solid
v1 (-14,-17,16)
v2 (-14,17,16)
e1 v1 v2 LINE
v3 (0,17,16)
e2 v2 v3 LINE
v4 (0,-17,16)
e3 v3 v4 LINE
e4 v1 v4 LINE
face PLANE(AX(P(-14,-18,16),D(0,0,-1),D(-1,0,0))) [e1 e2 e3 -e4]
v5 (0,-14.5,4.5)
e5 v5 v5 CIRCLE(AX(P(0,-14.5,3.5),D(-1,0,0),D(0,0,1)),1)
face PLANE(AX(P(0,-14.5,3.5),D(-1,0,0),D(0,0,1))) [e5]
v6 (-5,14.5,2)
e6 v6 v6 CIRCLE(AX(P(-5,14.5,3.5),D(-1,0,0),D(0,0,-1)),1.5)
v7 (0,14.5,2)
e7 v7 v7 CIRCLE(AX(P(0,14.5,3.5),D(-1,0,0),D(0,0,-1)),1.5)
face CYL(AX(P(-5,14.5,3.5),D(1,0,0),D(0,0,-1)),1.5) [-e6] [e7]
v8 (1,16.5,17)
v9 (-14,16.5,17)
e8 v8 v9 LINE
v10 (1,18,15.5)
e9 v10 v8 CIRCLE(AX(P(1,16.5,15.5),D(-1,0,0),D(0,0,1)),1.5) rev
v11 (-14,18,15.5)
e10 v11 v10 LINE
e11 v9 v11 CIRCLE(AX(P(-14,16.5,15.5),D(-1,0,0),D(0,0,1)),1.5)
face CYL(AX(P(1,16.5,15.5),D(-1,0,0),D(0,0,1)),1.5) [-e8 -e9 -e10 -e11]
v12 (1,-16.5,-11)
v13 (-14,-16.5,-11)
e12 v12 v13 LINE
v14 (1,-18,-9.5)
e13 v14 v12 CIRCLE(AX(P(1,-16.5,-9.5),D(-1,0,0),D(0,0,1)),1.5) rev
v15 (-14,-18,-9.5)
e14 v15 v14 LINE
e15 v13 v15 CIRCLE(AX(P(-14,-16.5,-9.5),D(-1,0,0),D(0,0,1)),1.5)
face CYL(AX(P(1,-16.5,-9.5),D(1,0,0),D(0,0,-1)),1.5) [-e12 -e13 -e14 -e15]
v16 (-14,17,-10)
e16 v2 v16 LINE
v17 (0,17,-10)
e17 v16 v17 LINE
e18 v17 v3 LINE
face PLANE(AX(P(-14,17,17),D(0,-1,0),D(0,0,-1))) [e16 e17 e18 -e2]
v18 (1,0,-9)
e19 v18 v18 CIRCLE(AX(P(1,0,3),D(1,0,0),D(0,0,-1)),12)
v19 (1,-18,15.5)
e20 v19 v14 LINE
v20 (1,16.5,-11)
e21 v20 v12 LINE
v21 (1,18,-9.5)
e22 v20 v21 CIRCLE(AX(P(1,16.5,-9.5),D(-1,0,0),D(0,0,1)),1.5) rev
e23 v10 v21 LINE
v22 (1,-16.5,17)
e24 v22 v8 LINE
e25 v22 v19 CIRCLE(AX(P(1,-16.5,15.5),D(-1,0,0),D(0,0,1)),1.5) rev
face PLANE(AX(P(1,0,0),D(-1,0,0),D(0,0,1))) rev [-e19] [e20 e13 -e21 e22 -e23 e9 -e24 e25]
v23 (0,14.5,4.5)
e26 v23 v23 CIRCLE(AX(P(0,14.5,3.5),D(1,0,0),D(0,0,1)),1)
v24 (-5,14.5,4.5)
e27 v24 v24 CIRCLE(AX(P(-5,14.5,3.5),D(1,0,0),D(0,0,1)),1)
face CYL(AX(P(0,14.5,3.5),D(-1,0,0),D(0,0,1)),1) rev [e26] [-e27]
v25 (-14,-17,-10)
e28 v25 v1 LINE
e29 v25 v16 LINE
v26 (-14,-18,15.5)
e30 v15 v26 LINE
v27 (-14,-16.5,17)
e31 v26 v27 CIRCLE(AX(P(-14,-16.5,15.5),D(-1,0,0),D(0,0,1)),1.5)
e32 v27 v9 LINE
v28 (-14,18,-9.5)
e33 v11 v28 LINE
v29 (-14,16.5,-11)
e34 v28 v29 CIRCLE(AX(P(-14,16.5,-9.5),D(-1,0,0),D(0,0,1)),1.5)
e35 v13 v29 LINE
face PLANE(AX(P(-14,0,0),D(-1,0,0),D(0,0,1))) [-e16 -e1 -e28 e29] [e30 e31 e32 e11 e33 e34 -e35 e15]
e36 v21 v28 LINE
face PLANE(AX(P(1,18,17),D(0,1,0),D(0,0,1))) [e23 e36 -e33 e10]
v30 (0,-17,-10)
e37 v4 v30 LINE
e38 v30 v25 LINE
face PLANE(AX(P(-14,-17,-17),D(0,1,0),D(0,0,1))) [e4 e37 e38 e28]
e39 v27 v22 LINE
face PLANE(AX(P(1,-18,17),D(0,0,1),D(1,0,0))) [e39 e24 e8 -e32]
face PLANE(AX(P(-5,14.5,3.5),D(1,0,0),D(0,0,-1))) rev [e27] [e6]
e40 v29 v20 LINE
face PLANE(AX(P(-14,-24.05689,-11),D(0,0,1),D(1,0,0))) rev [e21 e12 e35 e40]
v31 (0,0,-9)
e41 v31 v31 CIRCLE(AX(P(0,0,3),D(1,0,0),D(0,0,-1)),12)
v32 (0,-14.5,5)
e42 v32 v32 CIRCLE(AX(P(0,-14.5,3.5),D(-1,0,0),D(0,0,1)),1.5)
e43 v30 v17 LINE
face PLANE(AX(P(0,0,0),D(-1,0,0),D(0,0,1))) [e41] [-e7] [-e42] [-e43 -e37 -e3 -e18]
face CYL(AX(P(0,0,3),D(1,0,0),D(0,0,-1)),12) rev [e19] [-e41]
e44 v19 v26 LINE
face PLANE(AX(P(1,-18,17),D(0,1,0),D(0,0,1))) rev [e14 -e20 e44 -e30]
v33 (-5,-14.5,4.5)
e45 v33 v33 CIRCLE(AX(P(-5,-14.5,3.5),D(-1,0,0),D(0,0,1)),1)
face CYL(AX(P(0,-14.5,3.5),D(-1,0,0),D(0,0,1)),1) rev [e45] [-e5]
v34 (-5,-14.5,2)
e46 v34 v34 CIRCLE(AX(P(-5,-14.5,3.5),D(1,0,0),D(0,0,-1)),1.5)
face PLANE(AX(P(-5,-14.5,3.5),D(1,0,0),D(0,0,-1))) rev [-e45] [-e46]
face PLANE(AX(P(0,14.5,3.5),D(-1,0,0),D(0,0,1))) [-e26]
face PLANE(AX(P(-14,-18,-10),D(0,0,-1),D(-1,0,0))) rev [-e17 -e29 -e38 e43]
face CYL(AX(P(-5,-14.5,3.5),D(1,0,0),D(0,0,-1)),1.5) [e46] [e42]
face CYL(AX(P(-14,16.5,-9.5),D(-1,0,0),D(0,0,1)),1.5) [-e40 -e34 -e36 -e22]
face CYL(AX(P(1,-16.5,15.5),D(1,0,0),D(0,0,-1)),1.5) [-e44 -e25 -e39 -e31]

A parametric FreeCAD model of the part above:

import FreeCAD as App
import Part
import Sketcher

V = App.Vector


def edges_at(feature, points):
    """Names of the edges that pass closest to the given points."""
    edges = feature.Shape.Edges
    near = lambda p: min(range(len(edges)), key=lambda i: edges[i].distToShape(Part.Vertex(*p))[0])
    return sorted({f"Edge{near(p) + 1}" for p in points})


def add_polygon(sketch, points):
    """Adds a closed chain of lines whose ends are joined by coincident constraints."""
    first, n = sketch.GeometryCount, len(points)
    for a, b in zip(points, points[1:] + points[:1]):
        sketch.addGeometry(Part.LineSegment(App.Vector(*a, 0), App.Vector(*b, 0)), False)
    for i in range(n):
        sketch.addConstraint(Sketcher.Constraint("Coincident", first + i, 2, first + (i + 1) % n, 1))

doc = App.newDocument("Part")
body = doc.addObject("PartDesign::Body", "Body")

sketch1 = body.newObject("Sketcher::SketchObject", "Sketch")
sketch1.AttachmentSupport = (doc.getObject("YZ_Plane"), [""])
sketch1.MapMode = "FlatFace"
add_polygon(sketch1, [(-18, 17), (-18, -17), (18, -17), (18, 17)])
sketch1.addConstraint([
    Sketcher.Constraint("Vertical", 0),
    Sketcher.Constraint("Horizontal", 1),
    Sketcher.Constraint("Vertical", 2),
    Sketcher.Constraint("Horizontal", 3),
    Sketcher.Constraint("Symmetric", 0, 2, 2, 2, -1, 1),
    Sketcher.Constraint("DistanceX", 1, 1, 1, 2, 36.0),
    Sketcher.Constraint("DistanceY", 0, 2, 0, 1, 34.0),
])
pad1 = body.newObject("PartDesign::Pad", "Pad")
pad1.Profile = sketch1
pad1.Length = 1

sketch2 = body.newObject("Sketcher::SketchObject", "Sketch001")
sketch2.AttachmentSupport = (doc.getObject("YZ_Plane"), [""])
sketch2.MapMode = "FlatFace"
sketch2.AttachmentOffset = App.Placement(V(0, 0, 1), App.Rotation())
sketch2.addGeometry(Part.Circle(V(0, 3, 0), V(0, 0, 1), 12), False)
sketch2.addConstraint([
    Sketcher.Constraint("PointOnObject", 0, 3, -2),
    Sketcher.Constraint("Diameter", 0, 24.0),
    Sketcher.Constraint("DistanceY", -1, 1, 0, 3, 3.0),
])
pocket1 = body.newObject("PartDesign::Pocket", "Pocket")
pocket1.Profile = sketch2
pocket1.Length = 1

sketch3 = body.newObject("Sketcher::SketchObject", "Sketch002")
sketch3.AttachmentSupport = (doc.getObject("YZ_Plane"), [""])
sketch3.MapMode = "FlatFace"
sketch3.AttachmentOffset = App.Placement(V(0, 0, 1), App.Rotation())
add_polygon(sketch3, [(-18, 17), (-18, -17), (-17, -17), (-17, 16), (17, 16), (17, -17), (18, -17), (18, 17)])
sketch3.addConstraint([
    Sketcher.Constraint("Vertical", 0),
    Sketcher.Constraint("Horizontal", 1),
    Sketcher.Constraint("Vertical", 2),
    Sketcher.Constraint("Horizontal", 3),
    Sketcher.Constraint("Vertical", 4),
    Sketcher.Constraint("Horizontal", 5),
    Sketcher.Constraint("Vertical", 6),
    Sketcher.Constraint("Horizontal", 7),
    Sketcher.Constraint("Symmetric", 0, 2, 6, 2, -1, 1),
    Sketcher.Constraint("Symmetric", 1, 2, 4, 2, -2),
    Sketcher.Constraint("Equal", 3, 0),
    Sketcher.Constraint("DistanceX", 1, 1, 1, 2, 1.0),
    Sketcher.Constraint("DistanceX", 3, 1, 3, 2, 34.0),
    Sketcher.Constraint("DistanceY", 2, 1, 2, 2, 33.0),
])
pad2 = body.newObject("PartDesign::Pad", "Pad001")
pad2.Profile = sketch3
pad2.Length = 15
pad2.Reversed = True

sketch4 = body.newObject("Sketcher::SketchObject", "Sketch003")
sketch4.AttachmentSupport = (doc.getObject("YZ_Plane"), [""])
sketch4.MapMode = "FlatFace"
sketch4.AttachmentOffset = App.Placement(V(0, 0, 1), App.Rotation())
add_polygon(sketch4, [(24.005155, -11), (-24.05689, -11), (-24.05689, -17.466906), (24.005155, -17.466906)])
sketch4.addConstraint([
    Sketcher.Constraint("Horizontal", 0),
    Sketcher.Constraint("Vertical", 1),
    Sketcher.Constraint("Horizontal", 2),
    Sketcher.Constraint("Vertical", 3),
    Sketcher.Constraint("DistanceY", 0, 2, -1, 1, 11.0),
    Sketcher.Constraint("DistanceX", 0, 2, 0, 1, 48.062044),
    Sketcher.Constraint("DistanceY", 1, 2, 1, 1, 6.466906),
    Sketcher.Constraint("DistanceX", 0, 2, -1, 1, 24.05689),
])
pocket2 = body.newObject("PartDesign::Pocket", "Pocket001")
pocket2.Profile = sketch4
pocket2.Type = "ThroughAll"

sketch5 = body.newObject("Sketcher::SketchObject", "Sketch004")
sketch5.AttachmentSupport = (doc.getObject("YZ_Plane"), [""])
sketch5.MapMode = "FlatFace"
add_polygon(sketch5, [(-18, -10), (-18, -11), (18, -11), (18, -10)])
sketch5.addConstraint([
    Sketcher.Constraint("Vertical", 0),
    Sketcher.Constraint("Horizontal", 1),
    Sketcher.Constraint("Vertical", 2),
    Sketcher.Constraint("Horizontal", 3),
    Sketcher.Constraint("DistanceX", 1, 1, 1, 2, 36.0),
    Sketcher.Constraint("DistanceY", 0, 2, 0, 1, 1.0),
    Sketcher.Constraint("DistanceX", 0, 2, -1, 1, 18.0),
    Sketcher.Constraint("DistanceY", 0, 2, -1, 1, 11.0),
])
pad3 = body.newObject("PartDesign::Pad", "Pad002")
pad3.Profile = sketch5
pad3.Length = 14
pad3.Reversed = True
doc.recompute()

fillet = body.newObject("PartDesign::Fillet", "Fillet")
fillet.Base = (pad3, edges_at(pad3, [
    (-6.5, 18, -11),
    (-6.5, -18, -11),
    (-6.5, -18, 17),
    (-6.5, 18, 17),
]))
fillet.Radius = 1.5

sketch6 = body.newObject("Sketcher::SketchObject", "Sketch005")
sketch6.AttachmentSupport = (doc.getObject("YZ_Plane"), [""])
sketch6.MapMode = "FlatFace"
sketch6.addGeometry(Part.Circle(V(-14.5, 3.5, 0), V(0, 0, 1), 1.5), False)
sketch6.addConstraint([
    Sketcher.Constraint("Diameter", 0, 3.0),
    Sketcher.Constraint("DistanceX", 0, 3, -1, 1, 14.5),
    Sketcher.Constraint("DistanceY", -1, 1, 0, 3, 3.5),
])
pad4 = body.newObject("PartDesign::Pad", "Pad003")
pad4.Profile = sketch6
pad4.Length = 5
pad4.Reversed = True

sketch7 = body.newObject("Sketcher::SketchObject", "Sketch006")
sketch7.AttachmentSupport = (doc.getObject("YZ_Plane"), [""])
sketch7.MapMode = "FlatFace"
sketch7.AttachmentOffset = App.Placement(V(0, 0, -5), App.Rotation())
sketch7.addGeometry(Part.Circle(V(-14.5, 3.5, 0), V(0, 0, 1), 1), False)
sketch7.addConstraint([
    Sketcher.Constraint("Diameter", 0, 2.0),
    Sketcher.Constraint("DistanceX", 0, 3, -1, 1, 14.5),
    Sketcher.Constraint("DistanceY", -1, 1, 0, 3, 3.5),
])
pocket3 = body.newObject("PartDesign::Pocket", "Pocket002")
pocket3.Profile = sketch7
pocket3.Length = 5
pocket3.Reversed = True
doc.recompute()

mirrored = body.newObject("PartDesign::Mirrored", "Mirrored")
mirrored.Originals = [pad4, pocket3]
mirrored.MirrorPlane = (doc.getObject("XZ_Plane"), [""])
body.Tip = mirrored

doc.recompute()
